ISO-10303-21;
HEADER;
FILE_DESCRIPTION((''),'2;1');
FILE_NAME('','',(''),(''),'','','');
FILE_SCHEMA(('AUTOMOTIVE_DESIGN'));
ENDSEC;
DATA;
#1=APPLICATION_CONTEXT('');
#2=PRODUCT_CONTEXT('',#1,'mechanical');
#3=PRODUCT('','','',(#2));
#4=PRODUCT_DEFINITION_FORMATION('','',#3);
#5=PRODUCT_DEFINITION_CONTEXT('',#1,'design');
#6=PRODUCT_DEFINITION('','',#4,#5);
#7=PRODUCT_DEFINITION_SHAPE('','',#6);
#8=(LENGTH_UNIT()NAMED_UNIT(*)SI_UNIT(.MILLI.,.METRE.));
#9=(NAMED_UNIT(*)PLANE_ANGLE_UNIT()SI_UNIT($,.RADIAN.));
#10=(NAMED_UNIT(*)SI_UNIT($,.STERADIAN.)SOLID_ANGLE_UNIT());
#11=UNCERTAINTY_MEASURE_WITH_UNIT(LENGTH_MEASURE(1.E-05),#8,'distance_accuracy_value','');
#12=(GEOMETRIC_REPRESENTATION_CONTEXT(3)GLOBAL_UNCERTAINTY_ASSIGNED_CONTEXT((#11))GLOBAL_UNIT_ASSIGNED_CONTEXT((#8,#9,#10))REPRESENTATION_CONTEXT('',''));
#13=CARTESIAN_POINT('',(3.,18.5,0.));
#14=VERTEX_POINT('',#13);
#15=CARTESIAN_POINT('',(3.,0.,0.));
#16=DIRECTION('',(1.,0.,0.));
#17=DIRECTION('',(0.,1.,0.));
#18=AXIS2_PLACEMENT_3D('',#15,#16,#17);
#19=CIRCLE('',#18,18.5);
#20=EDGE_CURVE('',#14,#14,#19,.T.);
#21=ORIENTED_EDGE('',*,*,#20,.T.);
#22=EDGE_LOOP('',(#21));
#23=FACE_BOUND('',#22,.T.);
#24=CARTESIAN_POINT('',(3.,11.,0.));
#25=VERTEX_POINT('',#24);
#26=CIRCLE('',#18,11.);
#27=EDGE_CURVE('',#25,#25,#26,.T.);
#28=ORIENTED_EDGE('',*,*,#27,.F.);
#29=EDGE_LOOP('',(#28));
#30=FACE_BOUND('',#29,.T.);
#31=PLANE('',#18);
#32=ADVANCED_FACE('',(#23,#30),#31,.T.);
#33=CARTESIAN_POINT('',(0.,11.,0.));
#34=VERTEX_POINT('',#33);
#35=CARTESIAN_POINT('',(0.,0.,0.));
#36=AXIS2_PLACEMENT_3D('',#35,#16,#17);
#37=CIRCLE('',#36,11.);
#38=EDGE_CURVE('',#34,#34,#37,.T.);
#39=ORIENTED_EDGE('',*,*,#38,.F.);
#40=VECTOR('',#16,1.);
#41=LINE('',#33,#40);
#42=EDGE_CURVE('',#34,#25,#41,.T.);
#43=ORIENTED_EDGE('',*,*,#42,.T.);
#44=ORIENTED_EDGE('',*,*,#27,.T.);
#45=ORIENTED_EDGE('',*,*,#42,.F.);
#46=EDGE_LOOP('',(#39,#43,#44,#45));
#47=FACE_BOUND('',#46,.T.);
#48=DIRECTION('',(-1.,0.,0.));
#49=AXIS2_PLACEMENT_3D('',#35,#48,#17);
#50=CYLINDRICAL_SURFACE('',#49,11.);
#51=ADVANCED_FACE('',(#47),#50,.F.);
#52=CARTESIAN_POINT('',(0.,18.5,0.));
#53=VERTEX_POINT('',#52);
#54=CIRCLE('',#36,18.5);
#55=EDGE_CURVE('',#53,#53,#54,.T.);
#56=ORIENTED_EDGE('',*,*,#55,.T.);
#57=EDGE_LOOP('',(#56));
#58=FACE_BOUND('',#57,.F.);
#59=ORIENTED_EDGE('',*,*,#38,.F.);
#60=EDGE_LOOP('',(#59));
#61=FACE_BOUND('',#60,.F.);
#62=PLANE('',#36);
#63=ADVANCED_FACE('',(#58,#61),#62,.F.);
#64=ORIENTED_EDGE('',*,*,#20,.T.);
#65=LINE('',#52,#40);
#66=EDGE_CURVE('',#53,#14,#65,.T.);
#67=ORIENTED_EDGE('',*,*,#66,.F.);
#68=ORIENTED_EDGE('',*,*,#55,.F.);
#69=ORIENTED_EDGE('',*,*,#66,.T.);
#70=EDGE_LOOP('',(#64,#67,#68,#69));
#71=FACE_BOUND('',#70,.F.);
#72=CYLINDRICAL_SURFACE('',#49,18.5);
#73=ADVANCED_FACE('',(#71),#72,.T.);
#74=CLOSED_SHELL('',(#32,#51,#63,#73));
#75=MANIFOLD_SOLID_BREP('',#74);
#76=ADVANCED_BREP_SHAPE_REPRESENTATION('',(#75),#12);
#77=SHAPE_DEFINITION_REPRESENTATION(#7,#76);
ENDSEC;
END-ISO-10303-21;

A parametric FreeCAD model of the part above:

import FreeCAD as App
import Part
import Sketcher
from FreeCAD import Vector

doc = App.newDocument("Part")
body = doc.addObject("PartDesign::Body", "Body")

# Sketch on YZ plane
sketch1 = body.newObject("Sketcher::SketchObject", "Sketch")
sketch1.AttachmentSupport = (doc.getObject("YZ_Plane"), [""])
sketch1.MapMode = "FlatFace"
sketch1.addGeometry([
    Part.Circle(Vector(0, 0, 0), Vector(0, 0, 1), 18),
    Part.Circle(Vector(0, 0, 0), Vector(0, 0, 1), 11),
], False)
sketch1.addConstraint([
    Sketcher.Constraint("Coincident", 0, 3, -1, 1),
    Sketcher.Constraint("Coincident", 1, 3, -1, 1),
    Sketcher.Constraint("Diameter", 0, 37.0),
    Sketcher.Constraint("Diameter", 1, 22.0),
])
pad1 = body.newObject("PartDesign::Pad", "Pad")
pad1.Profile = sketch1
pad1.Length = 3

doc.recompute()
